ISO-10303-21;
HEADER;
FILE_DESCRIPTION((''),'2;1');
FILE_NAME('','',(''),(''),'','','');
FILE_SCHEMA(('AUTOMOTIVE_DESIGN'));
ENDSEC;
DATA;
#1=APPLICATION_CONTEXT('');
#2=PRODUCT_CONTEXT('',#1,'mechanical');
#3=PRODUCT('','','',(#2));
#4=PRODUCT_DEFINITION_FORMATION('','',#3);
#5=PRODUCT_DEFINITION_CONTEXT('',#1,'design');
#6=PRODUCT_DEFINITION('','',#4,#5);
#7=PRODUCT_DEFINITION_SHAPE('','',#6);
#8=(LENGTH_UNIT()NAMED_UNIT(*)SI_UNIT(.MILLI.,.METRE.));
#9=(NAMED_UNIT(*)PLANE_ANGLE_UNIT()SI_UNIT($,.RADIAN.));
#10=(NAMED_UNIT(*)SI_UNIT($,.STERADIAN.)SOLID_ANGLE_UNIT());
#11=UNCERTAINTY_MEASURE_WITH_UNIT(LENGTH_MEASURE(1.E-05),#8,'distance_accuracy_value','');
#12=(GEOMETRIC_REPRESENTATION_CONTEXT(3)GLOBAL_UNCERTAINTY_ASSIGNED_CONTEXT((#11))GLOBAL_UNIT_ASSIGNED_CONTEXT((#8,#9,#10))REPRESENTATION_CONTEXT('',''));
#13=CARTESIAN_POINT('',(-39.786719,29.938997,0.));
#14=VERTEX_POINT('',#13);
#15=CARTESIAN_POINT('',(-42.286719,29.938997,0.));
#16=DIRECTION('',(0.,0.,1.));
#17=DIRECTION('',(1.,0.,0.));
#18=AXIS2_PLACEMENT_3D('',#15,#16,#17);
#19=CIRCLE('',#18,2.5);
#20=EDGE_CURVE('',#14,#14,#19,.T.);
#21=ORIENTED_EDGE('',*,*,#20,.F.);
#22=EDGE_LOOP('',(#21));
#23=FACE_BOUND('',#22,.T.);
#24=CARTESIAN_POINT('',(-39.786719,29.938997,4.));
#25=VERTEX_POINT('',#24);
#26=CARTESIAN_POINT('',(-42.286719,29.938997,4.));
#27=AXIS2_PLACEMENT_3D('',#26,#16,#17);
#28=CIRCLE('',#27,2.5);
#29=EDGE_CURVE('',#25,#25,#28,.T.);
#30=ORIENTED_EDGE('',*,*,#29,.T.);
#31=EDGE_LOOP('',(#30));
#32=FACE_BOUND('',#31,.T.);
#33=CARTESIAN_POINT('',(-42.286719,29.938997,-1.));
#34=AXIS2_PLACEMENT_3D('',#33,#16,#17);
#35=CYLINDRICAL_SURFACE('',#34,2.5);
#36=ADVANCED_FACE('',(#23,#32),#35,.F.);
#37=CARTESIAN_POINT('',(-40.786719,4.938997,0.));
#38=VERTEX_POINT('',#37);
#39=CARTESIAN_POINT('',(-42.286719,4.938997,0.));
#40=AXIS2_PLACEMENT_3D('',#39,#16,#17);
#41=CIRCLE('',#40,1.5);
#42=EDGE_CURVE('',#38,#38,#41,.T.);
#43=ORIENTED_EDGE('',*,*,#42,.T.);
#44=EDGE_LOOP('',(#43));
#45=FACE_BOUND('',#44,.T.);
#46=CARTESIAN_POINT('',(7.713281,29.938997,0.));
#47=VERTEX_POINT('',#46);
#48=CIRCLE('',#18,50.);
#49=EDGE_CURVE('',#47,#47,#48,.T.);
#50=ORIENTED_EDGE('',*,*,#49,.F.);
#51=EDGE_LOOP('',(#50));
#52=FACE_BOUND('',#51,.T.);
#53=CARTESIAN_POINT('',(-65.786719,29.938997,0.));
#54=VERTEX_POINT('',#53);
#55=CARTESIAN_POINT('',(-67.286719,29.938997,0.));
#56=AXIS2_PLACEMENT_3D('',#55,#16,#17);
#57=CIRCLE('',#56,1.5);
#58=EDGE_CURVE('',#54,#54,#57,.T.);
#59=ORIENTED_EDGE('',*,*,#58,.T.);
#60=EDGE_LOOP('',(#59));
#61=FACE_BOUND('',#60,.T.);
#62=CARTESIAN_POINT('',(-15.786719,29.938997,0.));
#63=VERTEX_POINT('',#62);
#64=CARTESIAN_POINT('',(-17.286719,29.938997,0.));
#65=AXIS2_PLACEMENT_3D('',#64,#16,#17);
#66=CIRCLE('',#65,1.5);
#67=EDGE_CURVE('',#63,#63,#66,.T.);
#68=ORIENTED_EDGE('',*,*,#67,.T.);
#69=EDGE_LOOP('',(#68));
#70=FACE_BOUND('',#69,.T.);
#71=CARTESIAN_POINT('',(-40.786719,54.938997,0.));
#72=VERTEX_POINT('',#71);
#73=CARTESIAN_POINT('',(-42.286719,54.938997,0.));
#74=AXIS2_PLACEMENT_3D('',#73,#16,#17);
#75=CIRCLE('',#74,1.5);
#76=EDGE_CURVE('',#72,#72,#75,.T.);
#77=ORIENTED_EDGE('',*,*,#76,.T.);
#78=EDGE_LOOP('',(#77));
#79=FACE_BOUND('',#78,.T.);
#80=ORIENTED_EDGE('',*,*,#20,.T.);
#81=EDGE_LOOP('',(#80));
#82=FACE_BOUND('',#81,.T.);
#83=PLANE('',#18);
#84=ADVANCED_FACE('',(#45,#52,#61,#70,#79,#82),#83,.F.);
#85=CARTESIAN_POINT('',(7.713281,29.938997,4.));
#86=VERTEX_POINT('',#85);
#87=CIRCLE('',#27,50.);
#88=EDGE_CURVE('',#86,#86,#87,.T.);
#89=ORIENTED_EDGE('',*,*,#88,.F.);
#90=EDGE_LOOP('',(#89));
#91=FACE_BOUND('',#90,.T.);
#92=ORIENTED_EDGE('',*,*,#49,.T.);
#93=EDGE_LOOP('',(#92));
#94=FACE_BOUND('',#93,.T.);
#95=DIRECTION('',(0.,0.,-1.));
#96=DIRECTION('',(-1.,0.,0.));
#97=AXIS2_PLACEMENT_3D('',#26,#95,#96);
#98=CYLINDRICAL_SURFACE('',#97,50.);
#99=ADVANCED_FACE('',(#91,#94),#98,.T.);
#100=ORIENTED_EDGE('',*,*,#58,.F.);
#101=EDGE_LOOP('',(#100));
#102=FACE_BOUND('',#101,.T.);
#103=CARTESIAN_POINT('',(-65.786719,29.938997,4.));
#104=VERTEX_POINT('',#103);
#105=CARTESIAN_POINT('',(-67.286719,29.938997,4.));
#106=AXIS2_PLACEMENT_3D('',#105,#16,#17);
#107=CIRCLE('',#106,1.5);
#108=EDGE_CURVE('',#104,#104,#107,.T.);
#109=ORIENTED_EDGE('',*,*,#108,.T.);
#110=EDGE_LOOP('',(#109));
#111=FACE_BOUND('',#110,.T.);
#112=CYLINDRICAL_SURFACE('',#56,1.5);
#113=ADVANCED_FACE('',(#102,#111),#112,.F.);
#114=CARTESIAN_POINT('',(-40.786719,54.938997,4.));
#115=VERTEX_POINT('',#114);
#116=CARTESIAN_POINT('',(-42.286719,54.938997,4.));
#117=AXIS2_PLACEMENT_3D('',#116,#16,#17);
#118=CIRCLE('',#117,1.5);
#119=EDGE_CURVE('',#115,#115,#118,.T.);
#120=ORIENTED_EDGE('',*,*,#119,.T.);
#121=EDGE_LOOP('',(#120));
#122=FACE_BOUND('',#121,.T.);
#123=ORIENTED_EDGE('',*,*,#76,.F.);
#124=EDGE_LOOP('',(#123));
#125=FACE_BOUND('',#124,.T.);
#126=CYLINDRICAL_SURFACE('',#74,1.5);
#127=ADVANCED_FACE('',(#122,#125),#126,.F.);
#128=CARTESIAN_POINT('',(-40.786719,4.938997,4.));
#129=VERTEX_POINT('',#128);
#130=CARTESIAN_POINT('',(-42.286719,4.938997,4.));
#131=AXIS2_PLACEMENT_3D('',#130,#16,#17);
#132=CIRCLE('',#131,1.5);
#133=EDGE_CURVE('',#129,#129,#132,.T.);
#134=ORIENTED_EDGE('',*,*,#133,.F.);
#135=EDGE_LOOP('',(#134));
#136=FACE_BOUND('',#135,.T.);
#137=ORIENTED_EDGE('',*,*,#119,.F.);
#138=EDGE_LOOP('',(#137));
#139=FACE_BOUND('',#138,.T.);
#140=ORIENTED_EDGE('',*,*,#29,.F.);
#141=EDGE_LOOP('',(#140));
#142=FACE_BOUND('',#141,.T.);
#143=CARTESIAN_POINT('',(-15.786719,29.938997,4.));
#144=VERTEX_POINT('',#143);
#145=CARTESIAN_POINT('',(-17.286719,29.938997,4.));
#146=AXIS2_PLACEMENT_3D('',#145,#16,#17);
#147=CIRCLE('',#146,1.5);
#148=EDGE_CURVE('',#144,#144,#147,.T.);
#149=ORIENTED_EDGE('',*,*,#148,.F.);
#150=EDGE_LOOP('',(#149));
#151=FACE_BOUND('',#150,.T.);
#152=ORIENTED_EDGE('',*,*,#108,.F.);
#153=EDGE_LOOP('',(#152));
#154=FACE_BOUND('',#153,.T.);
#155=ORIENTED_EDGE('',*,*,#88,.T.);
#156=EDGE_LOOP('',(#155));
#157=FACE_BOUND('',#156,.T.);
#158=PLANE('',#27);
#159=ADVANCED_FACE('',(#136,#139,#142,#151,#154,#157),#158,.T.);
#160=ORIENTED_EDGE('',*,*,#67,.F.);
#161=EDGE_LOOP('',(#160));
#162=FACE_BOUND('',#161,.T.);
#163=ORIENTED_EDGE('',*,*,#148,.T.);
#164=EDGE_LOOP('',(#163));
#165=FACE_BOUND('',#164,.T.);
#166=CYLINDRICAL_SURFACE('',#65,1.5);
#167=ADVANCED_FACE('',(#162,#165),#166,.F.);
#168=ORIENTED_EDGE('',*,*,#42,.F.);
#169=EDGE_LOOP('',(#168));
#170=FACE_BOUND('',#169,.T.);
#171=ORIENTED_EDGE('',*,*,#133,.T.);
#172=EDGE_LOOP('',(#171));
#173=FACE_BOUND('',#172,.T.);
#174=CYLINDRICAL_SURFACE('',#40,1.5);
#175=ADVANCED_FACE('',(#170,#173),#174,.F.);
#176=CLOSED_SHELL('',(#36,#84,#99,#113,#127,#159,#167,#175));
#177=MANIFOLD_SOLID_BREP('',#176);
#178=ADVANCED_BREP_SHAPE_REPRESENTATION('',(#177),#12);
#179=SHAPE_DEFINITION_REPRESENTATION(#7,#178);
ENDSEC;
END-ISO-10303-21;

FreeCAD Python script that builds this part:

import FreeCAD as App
import Part
import Sketcher
from FreeCAD import Vector
Q = App.Units.Quantity

doc = App.newDocument("Part")
params = doc.addObject("Spreadsheet::Sheet", "Params")
for row, (alias, value) in enumerate([
    ("sketch1_diameter", "100 mm"),
    ("pad1_length", "4 mm"),
    ("sketch2_diameter", "5 mm"),
    ("pocket1_length", "5 mm"),
    ("sketch3_diameter", "3 mm"),
    ("pocket2_length", "4 mm"),
], start=1):
    params.set(f"A{row}", alias)
    params.set(f"B{row}", "=" + value)
    params.setAlias(f"B{row}", alias)

body = doc.addObject("PartDesign::Body", "Body")

sketch1 = body.newObject("Sketcher::SketchObject", "Sketch")
sketch1.AttachmentSupport = (doc.getObject("XY_Plane"), [""])
sketch1.MapMode = "FlatFace"
sketch1.addGeometry(Part.Circle(Vector(-42.286719, 29.938997, 0), Vector(0, 0, 1), 50), False)
sketch1.addConstraint(Sketcher.Constraint("Diameter", 0, Q("100 mm")))
sketch1.addConstraint(Sketcher.Constraint("DistanceX", 0, 3, -1, 1, Q("42.286719 mm")))
sketch1.addConstraint(Sketcher.Constraint("DistanceY", -1, 1, 0, 3, Q("29.938997 mm")))
sketch1.setExpression("Constraints[0]", "Params.sketch1_diameter")
pad1 = body.newObject("PartDesign::Pad", "Pad")
pad1.Profile = sketch1
pad1.setExpression("Length", "Params.pad1_length")

sketch2 = body.newObject("Sketcher::SketchObject", "Sketch001")
sketch2.AttachmentSupport = (doc.getObject("XY_Plane"), [""])
sketch2.MapMode = "FlatFace"
sketch2.AttachmentOffset = App.Placement(Vector(0, 0, 4), App.Rotation())
sketch2.addGeometry(Part.Circle(Vector(-42.286719, 29.938997, 0), Vector(0, 0, 1), 2.5), False)
sketch2.addConstraint(Sketcher.Constraint("Diameter", 0, Q("5 mm")))
sketch2.addConstraint(Sketcher.Constraint("DistanceX", 0, 3, -1, 1, Q("42.286719 mm")))
sketch2.addConstraint(Sketcher.Constraint("DistanceY", -1, 1, 0, 3, Q("29.938997 mm")))
sketch2.setExpression("Constraints[0]", "Params.sketch2_diameter")
pocket1 = body.newObject("PartDesign::Pocket", "Pocket")
pocket1.Profile = sketch2
pocket1.setExpression("Length", "Params.pocket1_length")

sketch3 = body.newObject("Sketcher::SketchObject", "Sketch002")
sketch3.AttachmentSupport = (doc.getObject("XY_Plane"), [""])
sketch3.MapMode = "FlatFace"
sketch3.AttachmentOffset = App.Placement(Vector(0, 0, 4), App.Rotation())
sketch3.addGeometry(Part.Circle(Vector(-67.286719, 29.938997, 0), Vector(0, 0, 1), 1.5), False)
sketch3.addGeometry(Part.Circle(Vector(-42.286719, 54.938997, 0), Vector(0, 0, 1), 1.5), False)
sketch3.addGeometry(Part.Circle(Vector(-17.286719, 29.938997, 0), Vector(0, 0, 1), 1.5), False)
sketch3.addGeometry(Part.Circle(Vector(-42.286719, 4.938997, 0), Vector(0, 0, 1), 1.5), False)
sketch3.addConstraint(Sketcher.Constraint("Equal", 0, 1))
sketch3.addConstraint(Sketcher.Constraint("Equal", 1, 2))
sketch3.addConstraint(Sketcher.Constraint("Equal", 2, 3))
sketch3.addConstraint(Sketcher.Constraint("Horizontal", 0, 3, 2, 3))
sketch3.addConstraint(Sketcher.Constraint("Vertical", 1, 3, 3, 3))
sketch3.addConstraint(Sketcher.Constraint("Diameter", 0, Q("3 mm")))
sketch3.addConstraint(Sketcher.Constraint("DistanceX", 0, 3, 1, 3, Q("25 mm")))
sketch3.addConstraint(Sketcher.Constraint("DistanceY", 0, 3, 1, 3, Q("25 mm")))
sketch3.addConstraint(Sketcher.Constraint("DistanceX", 1, 3, 2, 3, Q("25 mm")))
sketch3.addConstraint(Sketcher.Constraint("DistanceY", 3, 3, 0, 3, Q("25 mm")))
sketch3.addConstraint(Sketcher.Constraint("DistanceX", 0, 3, -1, 1, Q("67.286719 mm")))
sketch3.addConstraint(Sketcher.Constraint("DistanceY", -1, 1, 0, 3, Q("29.938997 mm")))
sketch3.setExpression("Constraints[5]", "Params.sketch3_diameter")
pocket2 = body.newObject("PartDesign::Pocket", "Pocket001")
pocket2.Profile = sketch3
pocket2.setExpression("Length", "Params.pocket2_length")

doc.recompute()
